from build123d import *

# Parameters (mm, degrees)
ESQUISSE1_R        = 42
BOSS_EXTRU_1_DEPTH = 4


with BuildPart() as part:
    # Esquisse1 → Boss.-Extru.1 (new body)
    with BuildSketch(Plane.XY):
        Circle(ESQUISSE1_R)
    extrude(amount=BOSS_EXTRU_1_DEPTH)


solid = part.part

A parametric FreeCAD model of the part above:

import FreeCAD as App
import Part
import Sketcher

V = App.Vector

doc = App.newDocument("Part")
body = doc.addObject("PartDesign::Body", "Body")

# Sketch on XY plane
sketch1 = doc.addObject("Sketcher::SketchObject", "Sketch")
body.addObject(sketch1)
sketch1.AttachmentSupport = (doc.XY_Plane, [""])
sketch1.MapMode = "FlatFace"
sketch1.addGeometry(Part.Circle(V(0, 0, 0), V(0, 0, 1), 42), False)
sketch1.addConstraint(Sketcher.Constraint("Coincident", 0, 3, -1, 1))
sketch1.addConstraint(Sketcher.Constraint("Diameter", 0, 84.0))
pad1 = doc.addObject("PartDesign::Pad", "Pad")
body.addObject(pad1)
pad1.Profile = sketch1
pad1.Length = 4

doc.recompute()
